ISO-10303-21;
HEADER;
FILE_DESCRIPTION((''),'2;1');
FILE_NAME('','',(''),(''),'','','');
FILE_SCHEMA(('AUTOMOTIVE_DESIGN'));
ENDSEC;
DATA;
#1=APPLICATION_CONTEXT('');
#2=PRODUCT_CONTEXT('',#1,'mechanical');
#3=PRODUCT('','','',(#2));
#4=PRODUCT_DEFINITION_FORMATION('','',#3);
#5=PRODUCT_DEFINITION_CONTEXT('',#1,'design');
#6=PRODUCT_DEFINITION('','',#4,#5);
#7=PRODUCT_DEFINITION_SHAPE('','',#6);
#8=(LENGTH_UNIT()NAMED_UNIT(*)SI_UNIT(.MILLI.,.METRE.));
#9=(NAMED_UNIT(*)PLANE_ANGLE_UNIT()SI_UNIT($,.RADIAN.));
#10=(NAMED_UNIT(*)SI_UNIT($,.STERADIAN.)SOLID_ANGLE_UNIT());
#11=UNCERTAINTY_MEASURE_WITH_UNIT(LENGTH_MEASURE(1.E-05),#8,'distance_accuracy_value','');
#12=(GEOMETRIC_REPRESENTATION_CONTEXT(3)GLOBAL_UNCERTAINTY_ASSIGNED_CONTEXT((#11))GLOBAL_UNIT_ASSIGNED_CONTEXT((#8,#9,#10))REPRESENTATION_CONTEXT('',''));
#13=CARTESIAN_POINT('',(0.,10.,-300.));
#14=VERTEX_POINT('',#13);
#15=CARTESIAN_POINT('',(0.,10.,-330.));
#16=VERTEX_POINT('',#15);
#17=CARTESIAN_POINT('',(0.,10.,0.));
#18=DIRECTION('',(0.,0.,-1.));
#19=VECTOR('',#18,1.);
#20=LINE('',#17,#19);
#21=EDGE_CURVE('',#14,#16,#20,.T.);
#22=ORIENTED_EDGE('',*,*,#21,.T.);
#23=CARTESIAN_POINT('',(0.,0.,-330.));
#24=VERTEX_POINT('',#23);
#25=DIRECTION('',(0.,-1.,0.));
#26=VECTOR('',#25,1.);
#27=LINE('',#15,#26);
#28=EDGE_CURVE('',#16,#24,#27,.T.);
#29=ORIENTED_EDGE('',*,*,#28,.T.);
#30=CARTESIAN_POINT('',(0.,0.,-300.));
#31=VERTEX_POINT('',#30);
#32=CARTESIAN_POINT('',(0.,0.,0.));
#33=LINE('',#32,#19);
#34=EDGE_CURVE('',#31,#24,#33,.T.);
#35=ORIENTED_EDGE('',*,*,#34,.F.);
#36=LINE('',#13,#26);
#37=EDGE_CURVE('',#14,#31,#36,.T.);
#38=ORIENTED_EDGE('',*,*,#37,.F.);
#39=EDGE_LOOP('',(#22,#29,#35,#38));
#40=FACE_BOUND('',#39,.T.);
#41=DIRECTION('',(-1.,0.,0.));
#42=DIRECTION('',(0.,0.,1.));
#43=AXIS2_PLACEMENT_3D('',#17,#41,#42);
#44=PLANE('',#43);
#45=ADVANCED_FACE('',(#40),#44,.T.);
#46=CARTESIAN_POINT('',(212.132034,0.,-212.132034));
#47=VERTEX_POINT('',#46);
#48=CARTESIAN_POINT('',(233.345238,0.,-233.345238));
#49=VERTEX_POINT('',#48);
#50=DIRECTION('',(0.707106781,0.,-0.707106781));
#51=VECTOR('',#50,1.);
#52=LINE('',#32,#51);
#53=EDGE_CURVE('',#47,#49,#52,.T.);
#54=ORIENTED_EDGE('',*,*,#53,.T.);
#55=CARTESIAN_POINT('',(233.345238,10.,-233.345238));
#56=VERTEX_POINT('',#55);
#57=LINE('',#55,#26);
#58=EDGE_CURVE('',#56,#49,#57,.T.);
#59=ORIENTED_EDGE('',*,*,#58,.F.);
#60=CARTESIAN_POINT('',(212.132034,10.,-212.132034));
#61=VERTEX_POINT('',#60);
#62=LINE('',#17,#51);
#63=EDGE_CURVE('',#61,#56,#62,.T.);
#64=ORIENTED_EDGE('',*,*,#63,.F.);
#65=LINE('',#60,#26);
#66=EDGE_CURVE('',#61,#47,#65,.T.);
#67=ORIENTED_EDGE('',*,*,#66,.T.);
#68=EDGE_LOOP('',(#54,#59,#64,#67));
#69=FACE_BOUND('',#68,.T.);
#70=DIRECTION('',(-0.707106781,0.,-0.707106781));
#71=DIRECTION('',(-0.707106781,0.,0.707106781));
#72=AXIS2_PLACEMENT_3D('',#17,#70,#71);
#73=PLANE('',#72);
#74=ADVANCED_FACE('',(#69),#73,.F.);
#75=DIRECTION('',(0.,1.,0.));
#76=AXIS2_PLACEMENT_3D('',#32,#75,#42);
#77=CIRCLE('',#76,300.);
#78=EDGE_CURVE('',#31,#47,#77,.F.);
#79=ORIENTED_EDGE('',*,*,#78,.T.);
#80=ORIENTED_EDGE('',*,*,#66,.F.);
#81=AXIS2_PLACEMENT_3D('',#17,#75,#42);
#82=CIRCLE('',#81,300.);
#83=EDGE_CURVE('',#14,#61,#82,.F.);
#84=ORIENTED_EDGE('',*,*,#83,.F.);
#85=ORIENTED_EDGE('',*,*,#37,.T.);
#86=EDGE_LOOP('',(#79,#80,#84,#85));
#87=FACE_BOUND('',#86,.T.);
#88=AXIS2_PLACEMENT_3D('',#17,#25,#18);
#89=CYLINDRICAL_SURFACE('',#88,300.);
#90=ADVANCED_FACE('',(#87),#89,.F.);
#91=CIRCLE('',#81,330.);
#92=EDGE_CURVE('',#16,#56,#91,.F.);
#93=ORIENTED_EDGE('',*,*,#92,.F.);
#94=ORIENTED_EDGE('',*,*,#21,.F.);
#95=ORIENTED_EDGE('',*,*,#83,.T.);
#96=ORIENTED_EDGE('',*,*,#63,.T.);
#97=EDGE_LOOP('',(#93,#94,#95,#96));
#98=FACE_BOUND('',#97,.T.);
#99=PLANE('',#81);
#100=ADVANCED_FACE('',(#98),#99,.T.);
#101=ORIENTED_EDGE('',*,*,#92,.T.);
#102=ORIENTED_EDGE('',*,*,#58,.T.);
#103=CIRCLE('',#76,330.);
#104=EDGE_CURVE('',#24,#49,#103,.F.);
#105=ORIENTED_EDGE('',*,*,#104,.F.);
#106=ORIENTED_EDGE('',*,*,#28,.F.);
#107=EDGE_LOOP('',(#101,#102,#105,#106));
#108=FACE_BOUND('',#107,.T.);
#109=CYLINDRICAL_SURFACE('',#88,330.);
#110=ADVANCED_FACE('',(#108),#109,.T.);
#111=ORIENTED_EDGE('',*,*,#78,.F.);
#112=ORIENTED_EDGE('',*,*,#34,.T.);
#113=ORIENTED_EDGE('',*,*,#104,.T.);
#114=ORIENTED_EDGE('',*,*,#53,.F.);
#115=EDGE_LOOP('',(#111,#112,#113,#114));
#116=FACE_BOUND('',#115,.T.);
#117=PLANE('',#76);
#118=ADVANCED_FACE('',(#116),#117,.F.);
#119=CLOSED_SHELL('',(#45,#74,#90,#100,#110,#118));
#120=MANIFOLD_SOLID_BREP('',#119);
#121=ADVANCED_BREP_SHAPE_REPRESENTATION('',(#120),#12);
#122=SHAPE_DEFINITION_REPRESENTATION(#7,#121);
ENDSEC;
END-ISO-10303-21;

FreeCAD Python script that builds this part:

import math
import FreeCAD as App
import Part
import Sketcher
from FreeCAD import Vector
Q = App.Units.Quantity

doc = App.newDocument("Part")
body = doc.addObject("PartDesign::Body", "Body")

# Sketch on XZ plane
sketch1 = doc.addObject("Sketcher::SketchObject", "Sketch")
body.addObject(sketch1)
sketch1.AttachmentSupport = (doc.XZ_Plane, [""])
sketch1.MapMode = "FlatFace"
sketch1.addGeometry(Part.ArcOfCircle(Part.Circle(Vector(0, 0, 0), Vector(0, 0, 1), 330), math.radians(-90), math.radians(-45)), False)
sketch1.addGeometry(Part.LineSegment(Vector(0, -330, 0), Vector(0, -300, 0)), False)
sketch1.addGeometry(Part.ArcOfCircle(Part.Circle(Vector(0, 0, 0), Vector(0, 0, 1), 300), math.radians(-90), math.radians(-45)), False)
sketch1.addGeometry(Part.LineSegment(Vector(212, -212, 0), Vector(233, -233, 0)), False)
sketch1.addConstraint(Sketcher.Constraint("Coincident", 0, 1, 1, 1))
sketch1.addConstraint(Sketcher.Constraint("Coincident", 1, 2, 2, 1))
sketch1.addConstraint(Sketcher.Constraint("Coincident", 2, 2, 3, 1))
sketch1.addConstraint(Sketcher.Constraint("Coincident", 3, 2, 0, 2))
sketch1.addConstraint(Sketcher.Constraint("Vertical", 1))
sketch1.addConstraint(Sketcher.Constraint("Coincident", 0, 3, -1, 1))
sketch1.addConstraint(Sketcher.Constraint("Coincident", 2, 3, -1, 1))
sketch1.addConstraint(Sketcher.Constraint("PointOnObject", 0, 1, -2))
sketch1.addConstraint(Sketcher.Constraint("Radius", 0, 330.0))
sketch1.addConstraint(Sketcher.Constraint("Radius", 2, 300.0))
sketch1.addConstraint(Sketcher.Constraint("Angle", 3, Q("-45 deg")))
sketch1.addConstraint(Sketcher.Constraint("DistanceX", -1, 1, 2, 2, 212.132034))
pad1 = doc.addObject("PartDesign::Pad", "Pad")
body.addObject(pad1)
pad1.Profile = sketch1
pad1.Length = 10
pad1.Reversed = True

doc.recompute()
